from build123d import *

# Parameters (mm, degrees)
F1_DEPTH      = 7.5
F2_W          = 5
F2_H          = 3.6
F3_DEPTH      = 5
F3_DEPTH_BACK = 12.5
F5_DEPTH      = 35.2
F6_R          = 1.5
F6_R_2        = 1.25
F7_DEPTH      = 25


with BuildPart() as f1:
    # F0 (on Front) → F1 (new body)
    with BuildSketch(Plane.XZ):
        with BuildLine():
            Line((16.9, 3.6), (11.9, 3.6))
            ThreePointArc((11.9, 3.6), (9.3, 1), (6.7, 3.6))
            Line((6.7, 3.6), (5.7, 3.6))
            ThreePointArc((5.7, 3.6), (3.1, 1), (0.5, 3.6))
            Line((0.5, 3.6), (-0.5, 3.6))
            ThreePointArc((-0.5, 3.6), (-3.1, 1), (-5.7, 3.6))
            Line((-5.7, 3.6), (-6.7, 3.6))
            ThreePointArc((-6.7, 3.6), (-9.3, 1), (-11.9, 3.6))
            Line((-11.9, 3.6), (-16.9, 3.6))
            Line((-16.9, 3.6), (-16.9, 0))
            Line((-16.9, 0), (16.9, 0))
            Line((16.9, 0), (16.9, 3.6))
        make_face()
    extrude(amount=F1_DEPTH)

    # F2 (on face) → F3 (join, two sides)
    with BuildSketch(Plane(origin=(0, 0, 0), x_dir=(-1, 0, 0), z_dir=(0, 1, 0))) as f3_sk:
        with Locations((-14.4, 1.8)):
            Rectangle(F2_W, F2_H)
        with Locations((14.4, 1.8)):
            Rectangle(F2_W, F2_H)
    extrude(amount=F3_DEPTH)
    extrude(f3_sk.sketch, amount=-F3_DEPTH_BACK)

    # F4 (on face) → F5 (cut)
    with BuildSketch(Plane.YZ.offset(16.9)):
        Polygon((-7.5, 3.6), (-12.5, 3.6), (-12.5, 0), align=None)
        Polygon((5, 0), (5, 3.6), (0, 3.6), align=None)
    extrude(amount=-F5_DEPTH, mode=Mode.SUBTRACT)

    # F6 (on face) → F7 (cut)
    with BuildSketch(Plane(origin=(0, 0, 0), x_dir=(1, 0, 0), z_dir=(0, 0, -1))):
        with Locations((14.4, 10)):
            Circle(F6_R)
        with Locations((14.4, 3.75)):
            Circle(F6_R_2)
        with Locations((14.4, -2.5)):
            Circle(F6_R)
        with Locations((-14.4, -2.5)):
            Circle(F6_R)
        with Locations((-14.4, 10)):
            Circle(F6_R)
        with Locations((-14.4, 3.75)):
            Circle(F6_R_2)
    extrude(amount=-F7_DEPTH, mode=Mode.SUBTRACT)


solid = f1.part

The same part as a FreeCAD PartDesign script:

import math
import FreeCAD as App
import Part
import Sketcher

V = App.Vector


def add_polygon(sketch, points):
    """Adds a closed chain of lines whose ends are joined by coincident constraints."""
    first, n = sketch.GeometryCount, len(points)
    for a, b in zip(points, points[1:] + points[:1]):
        sketch.addGeometry(Part.LineSegment(App.Vector(*a, 0), App.Vector(*b, 0)), False)
    for i in range(n):
        sketch.addConstraint(Sketcher.Constraint("Coincident", first + i, 2, first + (i + 1) % n, 1))

doc = App.newDocument("Part")
body = doc.addObject("PartDesign::Body", "Body")

sketch1 = doc.addObject("Sketcher::SketchObject", "Sketch")
body.addObject(sketch1)
sketch1.AttachmentSupport = (doc.XZ_Plane, [""])
sketch1.MapMode = "FlatFace"
sketch1.addGeometry([
    Part.LineSegment(V(16.9, 3.6, 0), V(11.9, 3.6, 0)),
    Part.ArcOfCircle(Part.Circle(V(9.3, 3.6, 0), V(0, 0, 1), 2.6), math.radians(180), math.radians(360)),
    Part.LineSegment(V(6.7, 3.6, 0), V(5.7, 3.6, 0)),
    Part.ArcOfCircle(Part.Circle(V(3.1, 3.6, 0), V(0, 0, 1), 2.6), math.radians(180), math.radians(360)),
    Part.LineSegment(V(0.5, 3.6, 0), V(-0.5, 3.6, 0)),
    Part.ArcOfCircle(Part.Circle(V(-3.1, 3.6, 0), V(0, 0, 1), 2.6), math.radians(180), math.radians(360)),
    Part.LineSegment(V(-5.7, 3.6, 0), V(-6.7, 3.6, 0)),
    Part.ArcOfCircle(Part.Circle(V(-9.3, 3.6, 0), V(0, 0, 1), 2.6), math.radians(180), math.radians(360)),
    Part.LineSegment(V(-11.9, 3.6, 0), V(-16.9, 3.6, 0)),
    Part.LineSegment(V(-16.9, 3.6, 0), V(-16.9, 0, 0)),
    Part.LineSegment(V(-16.9, 0, 0), V(16.9, 0, 0)),
    Part.LineSegment(V(16.9, 0, 0), V(16.9, 3.6, 0)),
], False)
sketch1.addConstraint([
    Sketcher.Constraint("Coincident", 0, 2, 1, 2),
    Sketcher.Constraint("Coincident", 1, 1, 2, 1),
    Sketcher.Constraint("Coincident", 2, 2, 3, 2),
    Sketcher.Constraint("Coincident", 3, 1, 4, 1),
    Sketcher.Constraint("Coincident", 4, 2, 5, 2),
    Sketcher.Constraint("Coincident", 5, 1, 6, 1),
    Sketcher.Constraint("Coincident", 6, 2, 7, 2),
    Sketcher.Constraint("Coincident", 7, 1, 8, 1),
    Sketcher.Constraint("Coincident", 8, 2, 9, 1),
    Sketcher.Constraint("Coincident", 9, 2, 10, 1),
    Sketcher.Constraint("Coincident", 10, 2, 11, 1),
    Sketcher.Constraint("Coincident", 11, 2, 0, 1),
    Sketcher.Constraint("Horizontal", 0),
    Sketcher.Constraint("Horizontal", 2),
    Sketcher.Constraint("Horizontal", 4),
    Sketcher.Constraint("Horizontal", 6),
    Sketcher.Constraint("Horizontal", 8),
    Sketcher.Constraint("Vertical", 9),
    Sketcher.Constraint("Horizontal", 10),
    Sketcher.Constraint("Vertical", 11),
    Sketcher.Constraint("Equal", 1, 3),
    Sketcher.Constraint("Equal", 3, 5),
    Sketcher.Constraint("Equal", 5, 7),
    Sketcher.Constraint("Symmetric", 9, 2, 10, 2, -1, 1),
    Sketcher.Constraint("Symmetric", 3, 3, 5, 3, -2),
    Sketcher.Constraint("Symmetric", 1, 3, 7, 3, -2),
    Sketcher.Constraint("Horizontal", 1, 3, 3, 3),
    Sketcher.Constraint("Horizontal", 7, 3, 0, 2),
    Sketcher.Constraint("Horizontal", 0, 2, 1, 1),
    Sketcher.Constraint("Horizontal", 2, 2, 3, 1),
    Sketcher.Constraint("Horizontal", 4, 2, 5, 1),
    Sketcher.Constraint("Horizontal", 6, 2, 7, 1),
    Sketcher.Constraint("Equal", 2, 4),
    Sketcher.Constraint("Radius", 1, 2.6),
    Sketcher.Constraint("DistanceX", 0, 2, 0, 1, 5.0),
    Sketcher.Constraint("DistanceX", 2, 2, 2, 1, 1.0),
    Sketcher.Constraint("DistanceY", 9, 2, 9, 1, 3.6),
])
pad1 = doc.addObject("PartDesign::Pad", "Pad")
body.addObject(pad1)
pad1.Profile = sketch1
pad1.Length = 7.5

sketch2 = doc.addObject("Sketcher::SketchObject", "Sketch001")
body.addObject(sketch2)
sketch2.AttachmentSupport = (doc.XZ_Plane, [""])
sketch2.MapMode = "FlatFace"
add_polygon(sketch2, [(16.9, 3.6), (16.9, 0), (11.9, 0), (11.9, 3.6)])
add_polygon(sketch2, [(-11.9, 3.6), (-11.9, 0), (-16.9, 0), (-16.9, 3.6)])
sketch2.addConstraint([
    Sketcher.Constraint("Vertical", 0),
    Sketcher.Constraint("Horizontal", 1),
    Sketcher.Constraint("Vertical", 2),
    Sketcher.Constraint("Horizontal", 3),
    Sketcher.Constraint("Vertical", 4),
    Sketcher.Constraint("Horizontal", 5),
    Sketcher.Constraint("Vertical", 6),
    Sketcher.Constraint("Horizontal", 7),
    Sketcher.Constraint("Symmetric", 1, 2, 4, 2, -1, 1),
    Sketcher.Constraint("Symmetric", 0, 2, 5, 2, -2),
    Sketcher.Constraint("Horizontal", 3, 2, 6, 2),
    Sketcher.Constraint("DistanceX", 1, 2, 1, 1, 5.0),
    Sketcher.Constraint("DistanceY", 0, 2, 0, 1, 3.6),
    Sketcher.Constraint("DistanceX", -1, 1, 0, 2, 16.9),
])
pad2 = doc.addObject("PartDesign::Pad", "Pad001")
body.addObject(pad2)
pad2.Profile = sketch2
pad2.Type = "TwoLengths"
pad2.Length = 5
pad2.Length2 = 12.5
pad2.Reversed = True

sketch3 = doc.addObject("Sketcher::SketchObject", "Sketch002")
body.addObject(sketch3)
sketch3.AttachmentSupport = (doc.YZ_Plane, [""])
sketch3.MapMode = "FlatFace"
sketch3.AttachmentOffset = App.Placement(V(0, 0, 16.9), App.Rotation())
add_polygon(sketch3, [(-7.5, 3.6), (-12.5, 3.6), (-12.5, 0)])
add_polygon(sketch3, [(5, 0), (5, 3.6), (0, 3.6)])
sketch3.addConstraint([
    Sketcher.Constraint("Horizontal", 0),
    Sketcher.Constraint("Vertical", 1),
    Sketcher.Constraint("Vertical", 3),
    Sketcher.Constraint("Horizontal", 4),
    Sketcher.Constraint("PointOnObject", 1, 2, -1),
    Sketcher.Constraint("PointOnObject", 4, 2, -2),
    Sketcher.Constraint("PointOnObject", 5, 2, -1),
    Sketcher.Constraint("Horizontal", 2, 2, 3, 2),
    Sketcher.Constraint("Equal", 0, 4),
    Sketcher.Constraint("DistanceX", 0, 2, 0, 1, 5.0),
    Sketcher.Constraint("DistanceY", 1, 2, 1, 1, 3.6),
    Sketcher.Constraint("DistanceX", 0, 2, -1, 1, 12.5),
])
pocket1 = doc.addObject("PartDesign::Pocket", "Pocket")
body.addObject(pocket1)
pocket1.Profile = sketch3
pocket1.Length = 35.2

sketch4 = doc.addObject("Sketcher::SketchObject", "Sketch003")
body.addObject(sketch4)
sketch4.AttachmentSupport = (doc.XY_Plane, [""])
sketch4.MapMode = "FlatFace"
sketch4.addGeometry([
    Part.Circle(V(14.4, -10, 0), V(0, 0, 1), 1.5),
    Part.Circle(V(14.4, -3.8, 0), V(0, 0, 1), 1.2),
    Part.Circle(V(14.4, 2.5, 0), V(0, 0, 1), 1.5),
    Part.Circle(V(-14.4, 2.5, 0), V(0, 0, 1), 1.5),
    Part.Circle(V(-14.4, -10, 0), V(0, 0, 1), 1.5),
    Part.Circle(V(-14.4, -3.8, 0), V(0, 0, 1), 1.2),
], False)
sketch4.addConstraint([
    Sketcher.Constraint("Equal", 0, 2),
    Sketcher.Constraint("Equal", 2, 3),
    Sketcher.Constraint("Equal", 3, 4),
    Sketcher.Constraint("Equal", 1, 5),
    Sketcher.Constraint("Symmetric", 2, 3, 3, 3, -2),
    Sketcher.Constraint("Symmetric", 0, 3, 4, 3, -2),
    Sketcher.Constraint("Symmetric", 1, 3, 5, 3, -2),
    Sketcher.Constraint("Vertical", 0, 3, 1, 3),
    Sketcher.Constraint("Vertical", 1, 3, 2, 3),
    Sketcher.Constraint("Diameter", 0, 3.0),
    Sketcher.Constraint("Diameter", 1, 2.5),
    Sketcher.Constraint("DistanceY", 0, 3, -1, 1, 10.0),
    Sketcher.Constraint("DistanceX", -1, 1, 0, 3, 14.4),
    Sketcher.Constraint("DistanceY", -1, 1, 2, 3, 2.5),
    Sketcher.Constraint("DistanceY", 1, 3, -1, 1, 3.75),
])
pocket2 = doc.addObject("PartDesign::Pocket", "Pocket001")
body.addObject(pocket2)
pocket2.Profile = sketch4
pocket2.Length = 25
pocket2.Reversed = True

doc.recompute()
